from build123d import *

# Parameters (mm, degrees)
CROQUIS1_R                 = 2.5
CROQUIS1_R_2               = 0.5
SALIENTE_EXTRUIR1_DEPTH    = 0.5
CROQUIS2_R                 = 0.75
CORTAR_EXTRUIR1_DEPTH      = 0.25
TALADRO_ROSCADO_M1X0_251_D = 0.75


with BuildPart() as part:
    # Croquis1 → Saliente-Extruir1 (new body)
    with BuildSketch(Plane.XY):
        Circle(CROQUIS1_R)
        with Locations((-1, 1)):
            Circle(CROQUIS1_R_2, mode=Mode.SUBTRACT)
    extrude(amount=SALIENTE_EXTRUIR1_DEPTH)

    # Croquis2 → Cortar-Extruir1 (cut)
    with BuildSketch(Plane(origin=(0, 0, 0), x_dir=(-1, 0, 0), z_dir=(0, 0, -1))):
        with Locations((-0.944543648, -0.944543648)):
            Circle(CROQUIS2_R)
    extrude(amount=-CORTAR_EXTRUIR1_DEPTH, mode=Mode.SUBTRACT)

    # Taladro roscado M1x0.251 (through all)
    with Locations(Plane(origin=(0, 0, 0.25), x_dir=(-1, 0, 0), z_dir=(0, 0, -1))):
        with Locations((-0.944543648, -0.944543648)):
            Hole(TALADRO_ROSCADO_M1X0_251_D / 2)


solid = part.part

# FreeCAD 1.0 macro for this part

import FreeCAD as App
import Part
import Sketcher
from FreeCAD import Vector

doc = App.newDocument("Part")
body = doc.addObject("PartDesign::Body", "Body")

# Sketch on XY plane
sketch1 = body.newObject("Sketcher::SketchObject", "Sketch")
sketch1.AttachmentSupport = (doc.getObject("XY_Plane"), [""])
sketch1.MapMode = "FlatFace"
sketch1.addGeometry([
    Part.Circle(Vector(0, 0, 0), Vector(0, 0, 1), 2.5),
    Part.Circle(Vector(-1, 1, 0), Vector(0, 0, 1), 0.5),
], False)
sketch1.addConstraint([
    Sketcher.Constraint("Coincident", 0, 3, -1, 1),
    Sketcher.Constraint("Diameter", 0, 5.0),
    Sketcher.Constraint("Diameter", 1, 1.0),
    Sketcher.Constraint("DistanceX", 1, 3, -1, 1, 1.0),
    Sketcher.Constraint("DistanceY", -1, 1, 1, 3, 1.0),
])
pad1 = body.newObject("PartDesign::Pad", "Pad")
pad1.Profile = sketch1
pad1.Length = 0.5

# Sketch on XY plane
sketch2 = body.newObject("Sketcher::SketchObject", "Sketch001")
sketch2.AttachmentSupport = (doc.getObject("XY_Plane"), [""])
sketch2.MapMode = "FlatFace"
sketch2.addGeometry(Part.Circle(Vector(0.944544, -0.944544, 0), Vector(0, 0, 1), 0.75), False)
sketch2.addConstraint([
    Sketcher.Constraint("Diameter", 0, 1.5),
    Sketcher.Constraint("DistanceX", -1, 1, 0, 3, 0.944544),
    Sketcher.Constraint("DistanceY", 0, 3, -1, 1, 0.944544),
])
pocket1 = body.newObject("PartDesign::Pocket", "Pocket")
pocket1.Profile = sketch2
pocket1.Length = 0.25
pocket1.Reversed = True

# Sketch on XY plane
sketch3 = body.newObject("Sketcher::SketchObject", "Sketch002")
sketch3.AttachmentSupport = (doc.getObject("XY_Plane"), [""])
sketch3.MapMode = "FlatFace"
sketch3.AttachmentOffset = App.Placement(Vector(0, 0, 0.25), App.Rotation())
sketch3.addGeometry(Part.Circle(Vector(0.944544, -0.944544, 0), Vector(0, 0, 1), 0.375), False)
sketch3.addConstraint([
    Sketcher.Constraint("Diameter", 0, 0.75),
    Sketcher.Constraint("DistanceX", -1, 1, 0, 3, 0.944544),
    Sketcher.Constraint("DistanceY", 0, 3, -1, 1, 0.944544),
])
doc.recompute()
hole = body.newObject("PartDesign::Hole", "Hole")
hole.Profile = sketch3
hole.ThreadType = "None"
hole.Diameter = 0.75
hole.DepthType = "ThroughAll"
hole.Reversed = True

doc.recompute()
